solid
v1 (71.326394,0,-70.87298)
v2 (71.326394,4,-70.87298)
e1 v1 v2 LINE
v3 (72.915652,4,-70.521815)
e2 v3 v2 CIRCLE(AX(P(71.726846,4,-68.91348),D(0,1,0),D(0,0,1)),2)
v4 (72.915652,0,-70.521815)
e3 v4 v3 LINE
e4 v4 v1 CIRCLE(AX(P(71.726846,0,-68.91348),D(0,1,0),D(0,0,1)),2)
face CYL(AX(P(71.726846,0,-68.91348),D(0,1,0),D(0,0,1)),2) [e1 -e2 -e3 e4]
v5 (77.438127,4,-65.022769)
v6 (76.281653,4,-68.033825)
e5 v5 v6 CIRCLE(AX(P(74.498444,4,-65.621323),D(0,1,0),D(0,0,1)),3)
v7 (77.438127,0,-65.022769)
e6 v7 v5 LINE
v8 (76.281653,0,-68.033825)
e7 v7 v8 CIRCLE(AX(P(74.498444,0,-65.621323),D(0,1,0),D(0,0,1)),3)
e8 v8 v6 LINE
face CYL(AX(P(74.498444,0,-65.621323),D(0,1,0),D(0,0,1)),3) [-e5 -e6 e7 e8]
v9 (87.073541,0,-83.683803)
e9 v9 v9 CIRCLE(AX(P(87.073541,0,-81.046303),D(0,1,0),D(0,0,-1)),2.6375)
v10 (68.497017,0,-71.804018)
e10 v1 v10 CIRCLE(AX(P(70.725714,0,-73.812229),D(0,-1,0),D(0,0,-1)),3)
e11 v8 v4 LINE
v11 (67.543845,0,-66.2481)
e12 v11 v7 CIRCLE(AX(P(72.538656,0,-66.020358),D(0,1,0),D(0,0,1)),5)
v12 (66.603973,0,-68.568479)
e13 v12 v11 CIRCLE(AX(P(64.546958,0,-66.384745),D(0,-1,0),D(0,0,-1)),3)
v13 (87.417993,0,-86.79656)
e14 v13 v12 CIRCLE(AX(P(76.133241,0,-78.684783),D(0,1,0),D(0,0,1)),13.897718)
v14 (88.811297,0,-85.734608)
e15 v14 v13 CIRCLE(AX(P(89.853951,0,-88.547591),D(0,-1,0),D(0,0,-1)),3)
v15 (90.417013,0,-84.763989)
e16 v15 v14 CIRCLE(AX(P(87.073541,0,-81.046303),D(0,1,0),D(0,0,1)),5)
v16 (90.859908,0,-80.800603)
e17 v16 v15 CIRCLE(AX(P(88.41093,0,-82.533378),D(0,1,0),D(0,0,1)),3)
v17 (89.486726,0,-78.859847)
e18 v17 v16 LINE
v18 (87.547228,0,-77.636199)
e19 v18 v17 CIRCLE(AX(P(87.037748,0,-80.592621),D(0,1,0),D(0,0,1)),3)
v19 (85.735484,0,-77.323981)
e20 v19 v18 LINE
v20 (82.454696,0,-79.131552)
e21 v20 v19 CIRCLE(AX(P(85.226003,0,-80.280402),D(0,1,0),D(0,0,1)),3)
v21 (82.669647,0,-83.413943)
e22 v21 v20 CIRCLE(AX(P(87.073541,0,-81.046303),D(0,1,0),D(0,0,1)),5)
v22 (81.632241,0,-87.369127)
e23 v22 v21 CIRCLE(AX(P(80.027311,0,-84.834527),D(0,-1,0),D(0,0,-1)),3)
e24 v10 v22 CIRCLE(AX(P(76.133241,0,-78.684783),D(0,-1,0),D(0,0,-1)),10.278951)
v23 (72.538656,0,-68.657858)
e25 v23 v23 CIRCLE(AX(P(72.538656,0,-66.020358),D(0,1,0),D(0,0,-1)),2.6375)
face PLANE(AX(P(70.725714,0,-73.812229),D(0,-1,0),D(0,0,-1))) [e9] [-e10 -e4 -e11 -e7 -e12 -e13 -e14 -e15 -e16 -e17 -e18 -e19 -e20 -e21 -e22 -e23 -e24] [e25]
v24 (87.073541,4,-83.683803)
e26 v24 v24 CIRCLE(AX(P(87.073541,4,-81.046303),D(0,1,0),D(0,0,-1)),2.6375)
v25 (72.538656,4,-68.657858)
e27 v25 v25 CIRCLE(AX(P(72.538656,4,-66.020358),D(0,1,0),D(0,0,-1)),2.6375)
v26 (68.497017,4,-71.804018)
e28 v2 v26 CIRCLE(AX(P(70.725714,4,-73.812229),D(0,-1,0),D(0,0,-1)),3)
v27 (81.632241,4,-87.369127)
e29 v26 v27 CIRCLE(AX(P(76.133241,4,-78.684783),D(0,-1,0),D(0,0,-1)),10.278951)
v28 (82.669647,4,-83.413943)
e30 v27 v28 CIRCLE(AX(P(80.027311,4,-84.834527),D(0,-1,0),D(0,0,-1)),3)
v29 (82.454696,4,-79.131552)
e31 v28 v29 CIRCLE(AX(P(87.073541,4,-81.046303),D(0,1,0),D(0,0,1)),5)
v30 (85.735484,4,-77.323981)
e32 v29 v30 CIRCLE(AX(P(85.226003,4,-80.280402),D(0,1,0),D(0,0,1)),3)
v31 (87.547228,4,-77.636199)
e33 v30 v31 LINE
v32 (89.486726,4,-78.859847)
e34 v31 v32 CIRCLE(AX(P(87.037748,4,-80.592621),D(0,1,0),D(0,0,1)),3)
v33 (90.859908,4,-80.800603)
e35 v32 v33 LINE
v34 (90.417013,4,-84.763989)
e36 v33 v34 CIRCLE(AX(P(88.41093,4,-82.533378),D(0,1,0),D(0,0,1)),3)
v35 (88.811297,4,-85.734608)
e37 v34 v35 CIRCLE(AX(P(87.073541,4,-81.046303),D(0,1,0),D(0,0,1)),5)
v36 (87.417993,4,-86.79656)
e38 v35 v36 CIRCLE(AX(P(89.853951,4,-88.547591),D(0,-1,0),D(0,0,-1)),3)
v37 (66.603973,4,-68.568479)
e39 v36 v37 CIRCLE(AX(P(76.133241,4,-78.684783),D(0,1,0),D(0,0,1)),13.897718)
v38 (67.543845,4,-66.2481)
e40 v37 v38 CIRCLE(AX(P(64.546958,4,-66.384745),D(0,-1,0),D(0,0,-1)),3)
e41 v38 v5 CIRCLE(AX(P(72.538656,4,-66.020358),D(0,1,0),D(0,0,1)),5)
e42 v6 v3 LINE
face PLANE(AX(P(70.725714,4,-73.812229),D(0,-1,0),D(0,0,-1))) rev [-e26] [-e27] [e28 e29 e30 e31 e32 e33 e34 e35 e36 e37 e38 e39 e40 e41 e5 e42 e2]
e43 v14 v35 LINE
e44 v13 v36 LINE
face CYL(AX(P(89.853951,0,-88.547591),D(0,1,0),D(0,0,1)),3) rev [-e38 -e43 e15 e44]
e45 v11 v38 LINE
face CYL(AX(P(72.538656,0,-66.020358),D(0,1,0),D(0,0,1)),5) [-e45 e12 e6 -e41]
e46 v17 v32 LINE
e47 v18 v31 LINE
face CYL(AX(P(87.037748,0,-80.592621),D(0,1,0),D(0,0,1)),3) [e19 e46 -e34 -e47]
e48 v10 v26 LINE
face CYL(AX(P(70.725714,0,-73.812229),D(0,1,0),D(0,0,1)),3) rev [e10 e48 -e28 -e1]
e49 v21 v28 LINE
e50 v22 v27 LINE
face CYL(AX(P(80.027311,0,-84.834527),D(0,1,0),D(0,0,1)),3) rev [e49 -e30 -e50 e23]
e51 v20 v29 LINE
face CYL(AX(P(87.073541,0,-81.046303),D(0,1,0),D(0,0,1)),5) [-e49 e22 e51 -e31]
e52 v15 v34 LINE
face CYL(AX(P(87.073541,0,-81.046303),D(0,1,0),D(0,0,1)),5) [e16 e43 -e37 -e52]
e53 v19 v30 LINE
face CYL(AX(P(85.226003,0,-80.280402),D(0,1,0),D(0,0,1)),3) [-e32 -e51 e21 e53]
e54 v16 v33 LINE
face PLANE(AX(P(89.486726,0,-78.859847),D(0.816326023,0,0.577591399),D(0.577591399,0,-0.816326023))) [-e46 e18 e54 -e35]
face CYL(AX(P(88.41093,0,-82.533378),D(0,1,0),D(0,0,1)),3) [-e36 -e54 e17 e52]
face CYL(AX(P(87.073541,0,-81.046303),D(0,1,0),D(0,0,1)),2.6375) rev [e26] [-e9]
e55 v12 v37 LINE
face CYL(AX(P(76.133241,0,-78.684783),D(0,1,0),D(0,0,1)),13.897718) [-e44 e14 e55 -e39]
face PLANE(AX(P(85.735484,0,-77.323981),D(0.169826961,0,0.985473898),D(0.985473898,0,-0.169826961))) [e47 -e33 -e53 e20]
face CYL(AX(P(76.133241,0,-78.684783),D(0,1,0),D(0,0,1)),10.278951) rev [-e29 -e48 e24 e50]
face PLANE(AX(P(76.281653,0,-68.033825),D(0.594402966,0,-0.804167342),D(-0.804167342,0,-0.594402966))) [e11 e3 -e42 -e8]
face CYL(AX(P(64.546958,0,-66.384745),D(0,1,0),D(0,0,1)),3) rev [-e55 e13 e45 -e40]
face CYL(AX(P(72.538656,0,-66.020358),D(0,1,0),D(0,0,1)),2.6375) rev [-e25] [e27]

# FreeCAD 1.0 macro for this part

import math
import FreeCAD as App
import Part
import Sketcher
Q = App.Units.Quantity

doc = App.newDocument("Part")
body = doc.addObject("PartDesign::Body", "Body")

sketch1 = doc.addObject("Sketcher::SketchObject", "Sketch")
body.addObject(sketch1)
sketch1.AttachmentSupport = (doc.XZ_Plane, [""])
sketch1.MapMode = "FlatFace"
sketch1.AttachmentOffset = App.Placement(App.Vector(0, 0, -4), App.Rotation())
sketch1.addGeometry([
    Part.LineSegment(App.Vector(85.735484, -77.323981, 0), App.Vector(87.547228, -77.636199, 0)),
    Part.ArcOfCircle(Part.Circle(App.Vector(87.037748, -80.592621, 0), App.Vector(0, 0, 1), 3), math.radians(35.281312), math.radians(80.222242)),
    Part.LineSegment(App.Vector(89.486726, -78.859847, 0), App.Vector(90.859908, -80.800603, 0)),
    Part.ArcOfCircle(Part.Circle(App.Vector(88.41093, -82.533378, 0), App.Vector(0, 0, 1), 3), math.radians(-48.033614), math.radians(35.281312)),
    Part.ArcOfCircle(Part.Circle(App.Vector(87.073541, -81.046303, 0), App.Vector(0, 0, 1), 5), math.radians(-69.662384), math.radians(-48.033614)),
    Part.ArcOfCircle(Part.Circle(App.Vector(89.853951, -88.547591, 0), App.Vector(0, 0, 1), 3), math.radians(110.337616), math.radians(144.290426)),
    Part.ArcOfCircle(Part.Circle(App.Vector(76.133241, -78.684783, 0), App.Vector(0, 0, 1), 13.897718), math.radians(133.288433), math.radians(324.290426)),
    Part.ArcOfCircle(Part.Circle(App.Vector(64.546958, -66.384745, 0), App.Vector(0, 0, 1), 3), math.radians(-46.711567), math.radians(2.610632)),
    Part.ArcOfCircle(Part.Circle(App.Vector(72.538656, -66.020358, 0), App.Vector(0, 0, 1), 5), math.radians(11.508765), math.radians(182.610632)),
    Part.ArcOfCircle(Part.Circle(App.Vector(74.498444, -65.621323, 0), App.Vector(0, 0, 1), 3), math.radians(-53.529917), math.radians(11.508765)),
    Part.LineSegment(App.Vector(76.281653, -68.033825, 0), App.Vector(72.915652, -70.521815, 0)),
    Part.ArcOfCircle(Part.Circle(App.Vector(71.726846, -68.91348, 0), App.Vector(0, 0, 1), 2), math.radians(-101.550199), math.radians(-53.529917)),
    Part.ArcOfCircle(Part.Circle(App.Vector(70.725714, -73.812229, 0), App.Vector(0, 0, 1), 3), math.radians(78.449801), math.radians(137.978965)),
    Part.ArcOfCircle(Part.Circle(App.Vector(76.133241, -78.684783, 0), App.Vector(0, 0, 1), 10.278951), math.radians(137.978965), math.radians(302.342337)),
    Part.ArcOfCircle(Part.Circle(App.Vector(80.027311, -84.834527, 0), App.Vector(0, 0, 1), 3), math.radians(-57.657663), math.radians(28.26355)),
    Part.ArcOfCircle(Part.Circle(App.Vector(87.073541, -81.046303, 0), App.Vector(0, 0, 1), 5), math.radians(157.483449), math.radians(208.26355)),
    Part.ArcOfCircle(Part.Circle(App.Vector(85.226003, -80.280402, 0), App.Vector(0, 0, 1), 3), math.radians(80.222242), math.radians(157.483449)),
    Part.Circle(App.Vector(72.538656, -66.020358, 0), App.Vector(0, 0, 1), 2.6375),
    Part.Circle(App.Vector(87.073541, -81.046303, 0), App.Vector(0, 0, 1), 2.6375),
], False)
sketch1.addConstraint([
    Sketcher.Constraint("Coincident", 0, 2, 1, 2),
    Sketcher.Constraint("Coincident", 1, 1, 2, 1),
    Sketcher.Constraint("Coincident", 2, 2, 3, 2),
    Sketcher.Constraint("Coincident", 3, 1, 4, 2),
    Sketcher.Constraint("Coincident", 4, 1, 5, 1),
    Sketcher.Constraint("Coincident", 5, 2, 6, 2),
    Sketcher.Constraint("Coincident", 6, 1, 7, 1),
    Sketcher.Constraint("Coincident", 7, 2, 8, 2),
    Sketcher.Constraint("Coincident", 8, 1, 9, 2),
    Sketcher.Constraint("Coincident", 9, 1, 10, 1),
    Sketcher.Constraint("Coincident", 10, 2, 11, 2),
    Sketcher.Constraint("Coincident", 11, 1, 12, 1),
    Sketcher.Constraint("Coincident", 12, 2, 13, 1),
    Sketcher.Constraint("Coincident", 13, 2, 14, 1),
    Sketcher.Constraint("Coincident", 14, 2, 15, 2),
    Sketcher.Constraint("Coincident", 15, 1, 16, 2),
    Sketcher.Constraint("Coincident", 16, 1, 0, 1),
    Sketcher.Constraint("Coincident", 13, 3, 6, 3),
    Sketcher.Constraint("Coincident", 15, 3, 4, 3),
    Sketcher.Constraint("Coincident", 17, 3, 8, 3),
    Sketcher.Constraint("Coincident", 18, 3, 4, 3),
    Sketcher.Constraint("Radius", 1, Q("3 mm")),
    Sketcher.Constraint("Radius", 3, Q("3 mm")),
    Sketcher.Constraint("Radius", 4, Q("5 mm")),
    Sketcher.Constraint("Radius", 5, Q("3 mm")),
    Sketcher.Constraint("Radius", 7, Q("3 mm")),
    Sketcher.Constraint("Radius", 8, Q("5 mm")),
    Sketcher.Constraint("Radius", 9, Q("3 mm")),
    Sketcher.Constraint("Radius", 11, Q("2 mm")),
    Sketcher.Constraint("Radius", 12, Q("3 mm")),
    Sketcher.Constraint("Radius", 14, Q("3 mm")),
    Sketcher.Constraint("Radius", 15, Q("5 mm")),
    Sketcher.Constraint("Radius", 16, Q("3 mm")),
    Sketcher.Constraint("Diameter", 17, Q("5.275 mm")),
    Sketcher.Constraint("Diameter", 18, Q("5.275 mm")),
    Sketcher.Constraint("Radius", 13, Q("10.278951 mm")),
    Sketcher.Constraint("Radius", 6, Q("13.897718 mm")),
    Sketcher.Constraint("DistanceY", 11, 3, 6, 1, Q("0.345002 mm")),
    Sketcher.Constraint("DistanceX", 7, 2, 11, 3, Q("4.183002 mm")),
    Sketcher.Constraint("DistanceX", 10, 2, 9, 1, Q("3.366 mm")),
    Sketcher.Constraint("DistanceY", 0, 2, -1, 1, Q("77.636199 mm")),
    Sketcher.Constraint("DistanceY", 7, 2, -1, 1, Q("66.2481 mm")),
    Sketcher.Constraint("DistanceX", 6, 3, 4, 3, Q("10.9403 mm")),
    Sketcher.Constraint("DistanceY", 1, 3, 9, 3, Q("14.971298 mm")),
    Sketcher.Constraint("DistanceX", 11, 3, 1, 3, Q("15.310901 mm")),
    Sketcher.Constraint("DistanceY", 4, 3, 16, 3, Q("0.765901 mm")),
    Sketcher.Constraint("DistanceY", 15, 3, 2, 2, Q("0.2457 mm")),
    Sketcher.Constraint("DistanceY", 5, 3, 3, 1, Q("3.783601 mm")),
    Sketcher.Constraint("DistanceY", 11, 1, 11, 3, Q("1.959499 mm")),
    Sketcher.Constraint("DistanceY", 13, 2, 14, 3, Q("2.5346 mm")),
    Sketcher.Constraint("Distance", 0, Q("1.83845 mm")),
    Sketcher.Constraint("Distance", 2, Q("2.377428 mm")),
    Sketcher.Constraint("DistanceY", 1, 3, -1, 1, Q("80.592621 mm")),
    Sketcher.Constraint("DistanceX", -1, 1, 3, 3, Q("88.41093 mm")),
    Sketcher.Constraint("DistanceX", -1, 1, 4, 3, Q("87.073541 mm")),
    Sketcher.Constraint("DistanceX", -1, 1, 5, 3, Q("89.853951 mm")),
    Sketcher.Constraint("DistanceY", 5, 3, -1, 1, Q("88.547591 mm")),
    Sketcher.Constraint("DistanceX", -1, 1, 7, 3, Q("64.546958 mm")),
    Sketcher.Constraint("DistanceY", 8, 3, -1, 1, Q("66.020358 mm")),
    Sketcher.Constraint("DistanceY", 11, 3, -1, 1, Q("68.91348 mm")),
    Sketcher.Constraint("DistanceY", 5, 2, -1, 1, Q("86.79656 mm")),
    Sketcher.Constraint("DistanceY", 8, 1, -1, 1, Q("65.022769 mm")),
    Sketcher.Constraint("DistanceY", 12, 2, -1, 1, Q("71.804018 mm")),
    Sketcher.Constraint("DistanceY", 15, 1, -1, 1, Q("79.131552 mm")),
    Sketcher.Constraint("DistanceY", 4, 1, 3, 1, Q("0.970619 mm")),
    Sketcher.Constraint("DistanceX", 9, 3, 9, 1, Q("1.783209 mm")),
    Sketcher.Constraint("DistanceY", 14, 2, 16, 3, Q("3.133541 mm")),
])
pad1 = doc.addObject("PartDesign::Pad", "Pad")
body.addObject(pad1)
pad1.Profile = sketch1
pad1.Length = 4

doc.recompute()
